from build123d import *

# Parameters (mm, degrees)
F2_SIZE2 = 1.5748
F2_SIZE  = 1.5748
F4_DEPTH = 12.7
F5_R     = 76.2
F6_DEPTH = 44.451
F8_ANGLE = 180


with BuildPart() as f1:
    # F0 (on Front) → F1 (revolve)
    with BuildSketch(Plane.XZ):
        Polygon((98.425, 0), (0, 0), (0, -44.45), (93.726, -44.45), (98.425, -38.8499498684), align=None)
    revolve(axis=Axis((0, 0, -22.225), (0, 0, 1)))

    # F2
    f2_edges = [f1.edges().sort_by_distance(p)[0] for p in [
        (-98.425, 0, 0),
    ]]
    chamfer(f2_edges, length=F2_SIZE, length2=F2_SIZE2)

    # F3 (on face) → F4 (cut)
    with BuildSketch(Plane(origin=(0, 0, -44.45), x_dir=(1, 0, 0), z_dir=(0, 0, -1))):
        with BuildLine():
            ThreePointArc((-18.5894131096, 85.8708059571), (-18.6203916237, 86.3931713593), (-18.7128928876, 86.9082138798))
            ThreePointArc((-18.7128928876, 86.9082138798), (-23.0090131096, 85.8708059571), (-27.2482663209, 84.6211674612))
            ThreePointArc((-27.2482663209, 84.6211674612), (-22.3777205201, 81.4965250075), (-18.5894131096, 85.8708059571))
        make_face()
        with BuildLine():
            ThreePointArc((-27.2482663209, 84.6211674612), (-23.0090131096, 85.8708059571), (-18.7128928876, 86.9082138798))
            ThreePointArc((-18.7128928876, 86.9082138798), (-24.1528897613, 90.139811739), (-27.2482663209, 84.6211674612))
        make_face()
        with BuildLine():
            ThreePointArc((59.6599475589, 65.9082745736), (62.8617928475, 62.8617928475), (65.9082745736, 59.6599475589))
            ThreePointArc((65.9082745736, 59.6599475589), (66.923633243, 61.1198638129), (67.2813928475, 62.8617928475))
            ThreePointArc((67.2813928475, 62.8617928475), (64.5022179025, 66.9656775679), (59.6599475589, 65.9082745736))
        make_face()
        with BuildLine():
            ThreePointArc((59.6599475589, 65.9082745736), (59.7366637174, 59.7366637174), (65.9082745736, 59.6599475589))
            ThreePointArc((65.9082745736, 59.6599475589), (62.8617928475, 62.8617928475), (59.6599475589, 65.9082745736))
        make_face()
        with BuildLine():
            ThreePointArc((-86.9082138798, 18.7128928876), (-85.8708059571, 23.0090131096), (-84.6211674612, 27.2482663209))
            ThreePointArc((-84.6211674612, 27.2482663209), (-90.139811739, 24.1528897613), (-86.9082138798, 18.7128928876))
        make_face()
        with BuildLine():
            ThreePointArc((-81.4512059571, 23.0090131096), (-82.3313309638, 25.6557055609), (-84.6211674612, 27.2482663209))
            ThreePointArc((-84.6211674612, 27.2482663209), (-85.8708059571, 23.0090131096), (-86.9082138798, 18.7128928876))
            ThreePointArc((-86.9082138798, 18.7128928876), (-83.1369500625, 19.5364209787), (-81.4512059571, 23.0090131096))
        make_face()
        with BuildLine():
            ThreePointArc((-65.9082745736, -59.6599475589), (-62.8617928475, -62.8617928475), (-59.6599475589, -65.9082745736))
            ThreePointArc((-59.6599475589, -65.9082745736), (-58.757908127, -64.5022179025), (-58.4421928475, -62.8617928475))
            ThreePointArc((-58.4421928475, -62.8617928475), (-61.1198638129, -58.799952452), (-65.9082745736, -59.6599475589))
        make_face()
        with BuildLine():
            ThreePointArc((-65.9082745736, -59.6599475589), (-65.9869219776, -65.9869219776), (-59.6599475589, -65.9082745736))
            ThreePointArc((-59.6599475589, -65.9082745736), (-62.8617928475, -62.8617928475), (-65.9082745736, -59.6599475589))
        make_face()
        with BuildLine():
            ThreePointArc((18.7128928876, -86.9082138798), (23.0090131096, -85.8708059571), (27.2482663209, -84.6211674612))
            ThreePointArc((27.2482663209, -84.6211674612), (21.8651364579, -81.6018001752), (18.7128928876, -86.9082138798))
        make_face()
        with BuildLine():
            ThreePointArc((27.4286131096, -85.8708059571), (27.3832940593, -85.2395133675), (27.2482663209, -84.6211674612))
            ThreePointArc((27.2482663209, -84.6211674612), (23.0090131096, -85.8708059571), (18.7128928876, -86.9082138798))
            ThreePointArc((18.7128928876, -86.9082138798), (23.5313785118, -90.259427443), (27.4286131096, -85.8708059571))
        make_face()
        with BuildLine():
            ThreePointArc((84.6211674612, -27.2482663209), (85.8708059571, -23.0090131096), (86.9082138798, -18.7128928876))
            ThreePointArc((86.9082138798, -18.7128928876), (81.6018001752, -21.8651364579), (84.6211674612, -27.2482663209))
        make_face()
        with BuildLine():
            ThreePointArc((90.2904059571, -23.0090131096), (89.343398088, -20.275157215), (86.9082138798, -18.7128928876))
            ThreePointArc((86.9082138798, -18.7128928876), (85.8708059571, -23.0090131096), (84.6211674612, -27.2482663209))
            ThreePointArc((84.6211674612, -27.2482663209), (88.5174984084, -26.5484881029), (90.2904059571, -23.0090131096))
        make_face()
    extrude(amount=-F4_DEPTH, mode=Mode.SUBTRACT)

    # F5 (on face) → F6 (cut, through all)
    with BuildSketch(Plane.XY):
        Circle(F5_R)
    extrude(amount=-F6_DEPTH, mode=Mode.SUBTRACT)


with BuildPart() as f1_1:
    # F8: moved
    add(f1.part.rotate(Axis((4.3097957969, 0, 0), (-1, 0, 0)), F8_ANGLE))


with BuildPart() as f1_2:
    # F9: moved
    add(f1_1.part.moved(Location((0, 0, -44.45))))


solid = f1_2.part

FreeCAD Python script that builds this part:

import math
import FreeCAD as App
import Part
import Sketcher
Q = App.Units.Quantity


def edges_at(feature, points):
    """Names of the edges that pass closest to the given points."""
    edges = feature.Shape.Edges
    near = lambda p: min(range(len(edges)), key=lambda i: edges[i].distToShape(Part.Vertex(*p))[0])
    return sorted({f"Edge{near(p) + 1}" for p in points})

doc = App.newDocument("Part")
params = doc.addObject("Spreadsheet::Sheet", "Params")
for row, (alias, value) in enumerate([
    ("sketch1_width", "3.69 in"),
    ("sketch1_height", "1.75 in"),
    ("sketch1_width2", "3.875 in"),
    ("revolution_angle", "360 deg"),
    ("chamfer_size", "0.062 in"),
    ("chamfer_size2", "0.062 in"),
    ("sketch2_radius", "0.174 in"),
    ("pocket1_length", "0.5 in"),
    ("sketch3_diameter", "6 in"),
], start=1):
    params.set(f"A{row}", alias)
    params.set(f"B{row}", "=" + value)
    params.setAlias(f"B{row}", alias)

body = doc.addObject("PartDesign::Body", "Body")

# Sketch on XZ plane
sketch1 = body.newObject("Sketcher::SketchObject", "Sketch")
sketch1.AttachmentSupport = (doc.getObject("XZ_Plane"), [""])
sketch1.MapMode = "FlatFace"
sketch1.addGeometry(Part.LineSegment(App.Vector(98, 0, 0), App.Vector(0, 0, 0)), False)
sketch1.addGeometry(Part.LineSegment(App.Vector(0, 0, 0), App.Vector(0, -44, 0)), False)
sketch1.addGeometry(Part.LineSegment(App.Vector(0, -44, 0), App.Vector(94, -44, 0)), False)
sketch1.addGeometry(Part.LineSegment(App.Vector(94, -44, 0), App.Vector(98, -39, 0)), False)
sketch1.addGeometry(Part.LineSegment(App.Vector(98, -39, 0), App.Vector(98, 0, 0)), False)
sketch1.addConstraint(Sketcher.Constraint("Coincident", 0, 2, 1, 1))
sketch1.addConstraint(Sketcher.Constraint("Coincident", 1, 2, 2, 1))
sketch1.addConstraint(Sketcher.Constraint("Coincident", 2, 2, 3, 1))
sketch1.addConstraint(Sketcher.Constraint("Coincident", 3, 2, 4, 1))
sketch1.addConstraint(Sketcher.Constraint("Coincident", 4, 2, 0, 1))
sketch1.addConstraint(Sketcher.Constraint("Horizontal", 0))
sketch1.addConstraint(Sketcher.Constraint("Vertical", 1))
sketch1.addConstraint(Sketcher.Constraint("Horizontal", 2))
sketch1.addConstraint(Sketcher.Constraint("Vertical", 4))
sketch1.addConstraint(Sketcher.Constraint("Coincident", 0, 2, -1, 1))
sketch1.addConstraint(Sketcher.Constraint("Angle", 3, Q("50 deg")))
sketch1.addConstraint(Sketcher.Constraint("DistanceX", 2, 1, 2, 2, Q("3.69 in")))
sketch1.addConstraint(Sketcher.Constraint("DistanceY", 1, 2, 1, 1, Q("1.75 in")))
sketch1.addConstraint(Sketcher.Constraint("DistanceX", 0, 2, 0, 1, Q("3.875 in")))
sketch1.setExpression("Constraints[11]", "Params.sketch1_width")
sketch1.setExpression("Constraints[12]", "Params.sketch1_height")
sketch1.setExpression("Constraints[13]", "Params.sketch1_width2")
revolution = body.newObject("PartDesign::Revolution", "Revolution")
revolution.Profile = sketch1
revolution.ReferenceAxis = (sketch1, ["V_Axis"])
revolution.setExpression("Angle", "Params.revolution_angle")
doc.recompute()

chamfer = body.newObject("PartDesign::Chamfer", "Chamfer")
chamfer.Base = (revolution, edges_at(revolution, [(-98.425, 0, 0)]))
chamfer.ChamferType = "Two distances"
chamfer.setExpression("Size", "Params.chamfer_size")
chamfer.setExpression("Size2", "Params.chamfer_size2")

# Sketch on XY plane
sketch2 = body.newObject("Sketcher::SketchObject", "Sketch001")
sketch2.AttachmentSupport = (doc.getObject("XY_Plane"), [""])
sketch2.MapMode = "FlatFace"
sketch2.AttachmentOffset = App.Placement(App.Vector(0, 0, -1.75 * 25.4), App.Rotation())
sketch2.addGeometry(Part.ArcOfCircle(Part.Circle(App.Vector(-23, -85.9, 0), App.Vector(0, 0, 1), 4.4), math.radians(-13.58), math.radians(0)), False)
sketch2.addGeometry(Part.ArcOfCircle(Part.Circle(App.Vector(-23, -85.9, 0), App.Vector(0, 0, 1), 4.4), math.radians(164), math.radians(346)), False)
sketch2.addGeometry(Part.ArcOfCircle(Part.Circle(App.Vector(-23, -85.9, 0), App.Vector(0, 0, 1), 4.4), math.radians(0), math.radians(164)), False)
sketch2.addGeometry(Part.ArcOfCircle(Part.Circle(App.Vector(62.9, -62.9, 0), App.Vector(0, 0, 1), 4.4), math.radians(0), math.radians(46)), False)
sketch2.addGeometry(Part.ArcOfCircle(Part.Circle(App.Vector(62.9, -62.9, 0), App.Vector(0, 0, 1), 4.4), math.radians(-136), math.radians(0)), False)
sketch2.addGeometry(Part.ArcOfCircle(Part.Circle(App.Vector(62.9, -62.9, 0), App.Vector(0, 0, 1), 4.4), math.radians(46), math.radians(224)), False)
sketch2.addGeometry(Part.ArcOfCircle(Part.Circle(App.Vector(-85.9, -23, 0), App.Vector(0, 0, 1), 4.4), math.radians(104), math.radians(286)), False)
sketch2.addGeometry(Part.ArcOfCircle(Part.Circle(App.Vector(-85.9, -23, 0), App.Vector(0, 0, 1), 4.4), math.radians(-74), math.radians(104)), False)
sketch2.addGeometry(Part.ArcOfCircle(Part.Circle(App.Vector(-62.9, 62.9, 0), App.Vector(0, 0, 1), 4.4), math.radians(0), math.radians(44)), False)
sketch2.addGeometry(Part.ArcOfCircle(Part.Circle(App.Vector(-62.9, 62.9, 0), App.Vector(0, 0, 1), 4.4), math.radians(-134), math.radians(0)), False)
sketch2.addGeometry(Part.ArcOfCircle(Part.Circle(App.Vector(-62.9, 62.9, 0), App.Vector(0, 0, 1), 4.4), math.radians(44), math.radians(226)), False)
sketch2.addGeometry(Part.ArcOfCircle(Part.Circle(App.Vector(23, 85.9, 0), App.Vector(0, 0, 1), 4.4), math.radians(166), math.radians(344)), False)
sketch2.addGeometry(Part.ArcOfCircle(Part.Circle(App.Vector(23, 85.9, 0), App.Vector(0, 0, 1), 4.4), math.radians(0), math.radians(166)), False)
sketch2.addGeometry(Part.ArcOfCircle(Part.Circle(App.Vector(23, 85.9, 0), App.Vector(0, 0, 1), 4.4), math.radians(-16.42), math.radians(0)), False)
sketch2.addGeometry(Part.ArcOfCircle(Part.Circle(App.Vector(85.9, 23, 0), App.Vector(0, 0, 1), 4.4), math.radians(106), math.radians(284)), False)
sketch2.addGeometry(Part.ArcOfCircle(Part.Circle(App.Vector(85.9, 23, 0), App.Vector(0, 0, 1), 4.4), math.radians(0), math.radians(106)), False)
sketch2.addGeometry(Part.ArcOfCircle(Part.Circle(App.Vector(85.9, 23, 0), App.Vector(0, 0, 1), 4.4), math.radians(-76), math.radians(0)), False)
sketch2.addConstraint(Sketcher.Constraint("Tangent", 0, 1, 1, 2))
sketch2.addConstraint(Sketcher.Constraint("Tangent", 1, 1, 2, 2))
sketch2.addConstraint(Sketcher.Constraint("Tangent", 2, 1, 0, 2))
sketch2.addConstraint(Sketcher.Constraint("Tangent", 3, 1, 4, 2))
sketch2.addConstraint(Sketcher.Constraint("Tangent", 4, 1, 5, 2))
sketch2.addConstraint(Sketcher.Constraint("Tangent", 5, 1, 3, 2))
sketch2.addConstraint(Sketcher.Constraint("Tangent", 6, 1, 7, 2))
sketch2.addConstraint(Sketcher.Constraint("Coincident", 7, 1, 6, 2))
sketch2.addConstraint(Sketcher.Constraint("Tangent", 8, 1, 9, 2))
sketch2.addConstraint(Sketcher.Constraint("Tangent", 9, 1, 10, 2))
sketch2.addConstraint(Sketcher.Constraint("Tangent", 10, 1, 8, 2))
sketch2.addConstraint(Sketcher.Constraint("Tangent", 11, 1, 12, 2))
sketch2.addConstraint(Sketcher.Constraint("Tangent", 12, 1, 13, 2))
sketch2.addConstraint(Sketcher.Constraint("Tangent", 13, 1, 11, 2))
sketch2.addConstraint(Sketcher.Constraint("Tangent", 14, 1, 15, 2))
sketch2.addConstraint(Sketcher.Constraint("Tangent", 15, 1, 16, 2))
sketch2.addConstraint(Sketcher.Constraint("Tangent", 16, 1, 14, 2))
sketch2.addConstraint(Sketcher.Constraint("Equal", 2, 3))
sketch2.addConstraint(Sketcher.Constraint("Equal", 5, 6))
sketch2.addConstraint(Sketcher.Constraint("Equal", 7, 8))
sketch2.addConstraint(Sketcher.Constraint("Equal", 10, 11))
sketch2.addConstraint(Sketcher.Constraint("Equal", 13, 14))
sketch2.addConstraint(Sketcher.Constraint("Symmetric", 3, 3, 8, 3, -1, 1))
sketch2.addConstraint(Sketcher.Constraint("Symmetric", 0, 3, 11, 3, -1, 1))
sketch2.addConstraint(Sketcher.Constraint("Symmetric", 6, 3, 14, 3, -1, 1))
sketch2.addConstraint(Sketcher.Constraint("Horizontal", 1, 3, 2, 1))
sketch2.addConstraint(Sketcher.Constraint("Horizontal", 5, 3, 3, 1))
sketch2.addConstraint(Sketcher.Constraint("Horizontal", 10, 3, 8, 1))
sketch2.addConstraint(Sketcher.Constraint("Horizontal", 13, 3, 12, 1))
sketch2.addConstraint(Sketcher.Constraint("Horizontal", 16, 3, 15, 1))
sketch2.addConstraint(Sketcher.Constraint("Radius", 0, Q("0.174 in")))
sketch2.addConstraint(Sketcher.Constraint("DistanceX", 6, 3, 4, 3, Q("148.732599 mm")))
sketch2.addConstraint(Sketcher.Constraint("DistanceY", 0, 3, 8, 3, Q("148.732599 mm")))
sketch2.addConstraint(Sketcher.Constraint("DistanceX", 7, 1, 1, 1, Q("57.372901 mm")))
sketch2.addConstraint(Sketcher.Constraint("DistanceY", 1, 1, 7, 1, Q("57.372901 mm")))
sketch2.addConstraint(Sketcher.Constraint("DistanceX", 13, 1, 14, 1, Q("57.372901 mm")))
sketch2.addConstraint(Sketcher.Constraint("DistanceY", 14, 1, 13, 1, Q("57.372901 mm")))
sketch2.addConstraint(Sketcher.Constraint("DistanceY", 4, 3, 6, 3, Q("39.85278 mm")))
sketch2.addConstraint(Sketcher.Constraint("DistanceX", 8, 3, 0, 3, Q("39.85278 mm")))
sketch2.addConstraint(Sketcher.Constraint("DistanceX", 1, 3, 0, 1, Q("4.29612 mm")))
sketch2.addConstraint(Sketcher.Constraint("DistanceY", 0, 1, 4, 3, Q("24.046421 mm")))
sketch2.addConstraint(Sketcher.Constraint("DistanceY", 0, 3, 1, 1, Q("1.249638 mm")))
sketch2.addConstraint(Sketcher.Constraint("DistanceY", 4, 1, 4, 3, Q("3.046482 mm")))
sketch2.addConstraint(Sketcher.Constraint("DistanceX", 5, 1, 3, 1, Q("1.373118 mm")))
sketch2.addConstraint(Sketcher.Constraint("DistanceY", 6, 3, 6, 1, Q("4.29612 mm")))
sketch2.addConstraint(Sketcher.Constraint("DistanceX", 9, 1, 9, 3, Q("3.046482 mm")))
sketch2.addConstraint(Sketcher.Constraint("DistanceY", 8, 1, 10, 1, Q("3.046482 mm")))
sketch2.addConstraint(Sketcher.Constraint("DistanceX", 11, 1, 11, 3, Q("4.29612 mm")))
sketch2.addConstraint(Sketcher.Constraint("DistanceY", 16, 1, 14, 3, Q("4.29612 mm")))
sketch2.setExpression("Constraints[30]", "Params.sketch2_radius")
pocket1 = body.newObject("PartDesign::Pocket", "Pocket")
pocket1.Profile = sketch2
pocket1.setExpression("Length", "Params.pocket1_length")
pocket1.Reversed = True

# Sketch on XY plane
sketch3 = body.newObject("Sketcher::SketchObject", "Sketch002")
sketch3.AttachmentSupport = (doc.getObject("XY_Plane"), [""])
sketch3.MapMode = "FlatFace"
sketch3.addGeometry(Part.Circle(App.Vector(0, 0, 0), App.Vector(0, 0, 1), 76), False)
sketch3.addConstraint(Sketcher.Constraint("Coincident", 0, 3, -1, 1))
sketch3.addConstraint(Sketcher.Constraint("Diameter", 0, Q("6 in")))
sketch3.setExpression("Constraints[1]", "Params.sketch3_diameter")
pocket2 = body.newObject("PartDesign::Pocket", "Pocket001")
pocket2.Profile = sketch3
pocket2.Type = "ThroughAll"
body2 = doc.addObject("PartDesign::Body", "Body001")
doc.recompute()

body.Placement = App.Placement(App.Vector(0, 0, 0), App.Rotation(App.Vector(-1, 0, 0), 180))
boolean = body2.newObject("PartDesign::Boolean", "Boolean")
boolean.Type = "Fuse"
boolean.addObjects([body])
body3 = doc.addObject("PartDesign::Body", "Body002")
doc.recompute()

body2.Placement = App.Placement(App.Vector(0, 0, -44.45), App.Rotation(App.Vector(0, 0, 1), 0))
boolean2 = body3.newObject("PartDesign::Boolean", "Boolean001")
boolean2.Type = "Fuse"
boolean2.addObjects([body2])

doc.recompute()
